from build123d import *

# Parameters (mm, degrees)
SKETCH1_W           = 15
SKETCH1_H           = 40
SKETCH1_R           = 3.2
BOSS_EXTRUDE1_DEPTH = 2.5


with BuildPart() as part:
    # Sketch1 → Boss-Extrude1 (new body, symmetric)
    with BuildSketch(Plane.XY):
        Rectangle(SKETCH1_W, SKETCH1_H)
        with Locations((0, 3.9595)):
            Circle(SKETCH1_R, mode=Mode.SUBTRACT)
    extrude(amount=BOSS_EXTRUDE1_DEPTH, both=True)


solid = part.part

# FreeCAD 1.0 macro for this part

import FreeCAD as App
import Part
import Sketcher

V = App.Vector
Q = App.Units.Quantity

doc = App.newDocument("Part")
body = doc.addObject("PartDesign::Body", "Body")

# Sketch on XY plane
sketch1 = body.newObject("Sketcher::SketchObject", "Sketch")
sketch1.AttachmentSupport = (doc.getObject("XY_Plane"), [""])
sketch1.MapMode = "FlatFace"
sketch1.addGeometry(Part.LineSegment(V(-7.5, 20, 0), V(-7.5, -20, 0)), False)
sketch1.addGeometry(Part.LineSegment(V(-7.5, -20, 0), V(7.5, -20, 0)), False)
sketch1.addGeometry(Part.LineSegment(V(7.5, -20, 0), V(7.5, 20, 0)), False)
sketch1.addGeometry(Part.LineSegment(V(7.5, 20, 0), V(-7.5, 20, 0)), False)
sketch1.addGeometry(Part.Circle(V(0, 3.9595, 0), V(0, 0, 1), 3.2), False)
sketch1.addConstraint(Sketcher.Constraint("Coincident", 0, 2, 1, 1))
sketch1.addConstraint(Sketcher.Constraint("Coincident", 1, 2, 2, 1))
sketch1.addConstraint(Sketcher.Constraint("Coincident", 2, 2, 3, 1))
sketch1.addConstraint(Sketcher.Constraint("Coincident", 3, 2, 0, 1))
sketch1.addConstraint(Sketcher.Constraint("Vertical", 0))
sketch1.addConstraint(Sketcher.Constraint("Horizontal", 1))
sketch1.addConstraint(Sketcher.Constraint("Vertical", 2))
sketch1.addConstraint(Sketcher.Constraint("Horizontal", 3))
sketch1.addConstraint(Sketcher.Constraint("Symmetric", 0, 2, 2, 2, -1, 1))
sketch1.addConstraint(Sketcher.Constraint("PointOnObject", 4, 3, -2))
sketch1.addConstraint(Sketcher.Constraint("Diameter", 4, Q("6.4 mm")))
sketch1.addConstraint(Sketcher.Constraint("DistanceX", 1, 1, 1, 2, Q("15 mm")))
sketch1.addConstraint(Sketcher.Constraint("DistanceY", 0, 2, 0, 1, Q("40 mm")))
sketch1.addConstraint(Sketcher.Constraint("DistanceY", -1, 1, 4, 3, Q("3.9595 mm")))
pad1 = body.newObject("PartDesign::Pad", "Pad")
pad1.Profile = sketch1
pad1.Length = 5
pad1.Midplane = True

doc.recompute()
